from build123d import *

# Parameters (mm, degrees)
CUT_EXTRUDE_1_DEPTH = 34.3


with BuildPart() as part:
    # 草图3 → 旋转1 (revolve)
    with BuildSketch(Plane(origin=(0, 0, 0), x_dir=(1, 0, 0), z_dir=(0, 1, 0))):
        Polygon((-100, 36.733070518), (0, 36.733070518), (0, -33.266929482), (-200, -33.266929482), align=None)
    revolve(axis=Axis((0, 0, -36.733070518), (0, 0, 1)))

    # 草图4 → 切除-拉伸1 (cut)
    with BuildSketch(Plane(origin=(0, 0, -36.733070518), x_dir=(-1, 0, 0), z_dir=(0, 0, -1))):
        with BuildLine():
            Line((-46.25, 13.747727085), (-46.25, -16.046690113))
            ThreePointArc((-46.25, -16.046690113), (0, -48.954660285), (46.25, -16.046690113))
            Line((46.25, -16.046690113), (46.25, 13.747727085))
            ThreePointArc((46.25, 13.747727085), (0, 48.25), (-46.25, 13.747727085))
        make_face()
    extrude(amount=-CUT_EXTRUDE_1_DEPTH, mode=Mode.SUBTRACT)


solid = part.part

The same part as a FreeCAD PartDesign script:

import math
import FreeCAD as App
import Part
import Sketcher

V = App.Vector
Q = App.Units.Quantity

doc = App.newDocument("Part")
body = doc.addObject("PartDesign::Body", "Body")

# Sketch on XZ plane
sketch1 = body.newObject("Sketcher::SketchObject", "Sketch")
sketch1.AttachmentSupport = (doc.getObject("XZ_Plane"), [""])
sketch1.MapMode = "FlatFace"
sketch1.addGeometry(Part.LineSegment(V(0, -37, 0), V(-100, -37, 0)), False)
sketch1.addGeometry(Part.LineSegment(V(-100, -37, 0), V(-200, 33, 0)), False)
sketch1.addGeometry(Part.LineSegment(V(-200, 33, 0), V(0, 33, 0)), False)
sketch1.addGeometry(Part.LineSegment(V(0, 33, 0), V(0, -37, 0)), False)
sketch1.addConstraint(Sketcher.Constraint("Coincident", 0, 2, 1, 1))
sketch1.addConstraint(Sketcher.Constraint("Coincident", 1, 2, 2, 1))
sketch1.addConstraint(Sketcher.Constraint("Coincident", 2, 2, 3, 1))
sketch1.addConstraint(Sketcher.Constraint("Coincident", 3, 2, 0, 1))
sketch1.addConstraint(Sketcher.Constraint("Horizontal", 0))
sketch1.addConstraint(Sketcher.Constraint("Horizontal", 2))
sketch1.addConstraint(Sketcher.Constraint("Vertical", 3))
sketch1.addConstraint(Sketcher.Constraint("PointOnObject", 2, 2, -2))
sketch1.addConstraint(Sketcher.Constraint("DistanceX", 0, 2, 0, 1, Q("100 mm")))
sketch1.addConstraint(Sketcher.Constraint("DistanceX", 2, 1, 2, 2, Q("200 mm")))
sketch1.addConstraint(Sketcher.Constraint("DistanceY", 3, 2, 3, 1, Q("70 mm")))
sketch1.addConstraint(Sketcher.Constraint("DistanceY", 0, 2, -1, 1, Q("36.733071 mm")))
revolution = body.newObject("PartDesign::Revolution", "Revolution")
revolution.Profile = sketch1
revolution.ReferenceAxis = (sketch1, ["V_Axis"])
revolution.Angle = 360

# Sketch on XY plane
sketch2 = body.newObject("Sketcher::SketchObject", "Sketch001")
sketch2.AttachmentSupport = (doc.getObject("XY_Plane"), [""])
sketch2.MapMode = "FlatFace"
sketch2.AttachmentOffset = App.Placement(V(0, 0, -36.733071), App.Rotation())
sketch2.addGeometry(Part.LineSegment(V(46, 14, 0), V(46, -16, 0)), False)
sketch2.addGeometry(Part.ArcOfCircle(Part.Circle(V(0, 0, 0), V(0, 0, 1), 49), math.radians(-161), math.radians(-19)), False)
sketch2.addGeometry(Part.LineSegment(V(-46, -16, 0), V(-46, 14, 0)), False)
sketch2.addGeometry(Part.ArcOfCircle(Part.Circle(V(0, 0, 0), V(0, 0, 1), 48), math.radians(17), math.radians(163)), False)
sketch2.addConstraint(Sketcher.Constraint("Coincident", 0, 2, 1, 2))
sketch2.addConstraint(Sketcher.Constraint("Coincident", 1, 1, 2, 1))
sketch2.addConstraint(Sketcher.Constraint("Coincident", 2, 2, 3, 2))
sketch2.addConstraint(Sketcher.Constraint("Coincident", 3, 1, 0, 1))
sketch2.addConstraint(Sketcher.Constraint("Vertical", 0))
sketch2.addConstraint(Sketcher.Constraint("Vertical", 2))
sketch2.addConstraint(Sketcher.Constraint("Coincident", 1, 3, -1, 1))
sketch2.addConstraint(Sketcher.Constraint("Coincident", 3, 3, -1, 1))
sketch2.addConstraint(Sketcher.Constraint("Horizontal", 0, 2, 1, 1))
sketch2.addConstraint(Sketcher.Constraint("Radius", 3, Q("48.25 mm")))
sketch2.addConstraint(Sketcher.Constraint("DistanceX", 1, 1, 0, 2, Q("92.5 mm")))
sketch2.addConstraint(Sketcher.Constraint("Radius", 1, Q("48.95466 mm")))
pocket1 = body.newObject("PartDesign::Pocket", "Pocket")
pocket1.Profile = sketch2
pocket1.Length = 34.3
pocket1.Reversed = True

doc.recompute()
